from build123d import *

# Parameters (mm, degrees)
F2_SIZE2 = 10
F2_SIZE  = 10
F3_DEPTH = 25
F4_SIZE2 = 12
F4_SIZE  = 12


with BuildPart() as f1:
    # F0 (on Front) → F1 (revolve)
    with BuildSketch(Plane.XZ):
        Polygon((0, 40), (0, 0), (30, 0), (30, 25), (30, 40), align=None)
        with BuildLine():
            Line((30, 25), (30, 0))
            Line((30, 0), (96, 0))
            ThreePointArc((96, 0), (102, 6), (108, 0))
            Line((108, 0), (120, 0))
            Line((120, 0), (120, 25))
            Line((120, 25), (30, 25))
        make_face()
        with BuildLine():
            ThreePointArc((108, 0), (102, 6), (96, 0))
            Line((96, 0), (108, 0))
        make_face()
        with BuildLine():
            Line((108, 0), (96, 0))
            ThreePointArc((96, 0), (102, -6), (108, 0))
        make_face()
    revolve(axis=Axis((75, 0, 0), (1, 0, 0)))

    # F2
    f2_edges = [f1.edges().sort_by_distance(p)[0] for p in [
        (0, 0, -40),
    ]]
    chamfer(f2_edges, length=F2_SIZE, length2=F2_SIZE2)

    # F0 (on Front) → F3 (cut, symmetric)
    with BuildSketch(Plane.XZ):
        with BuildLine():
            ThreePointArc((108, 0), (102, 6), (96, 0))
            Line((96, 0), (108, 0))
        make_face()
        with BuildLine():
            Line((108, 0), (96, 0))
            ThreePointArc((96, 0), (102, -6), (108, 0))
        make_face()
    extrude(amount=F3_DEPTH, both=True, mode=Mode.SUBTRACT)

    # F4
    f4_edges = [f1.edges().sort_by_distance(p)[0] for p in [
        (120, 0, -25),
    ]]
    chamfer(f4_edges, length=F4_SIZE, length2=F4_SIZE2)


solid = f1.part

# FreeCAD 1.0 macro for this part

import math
import FreeCAD as App
import Part
import Sketcher

V = App.Vector
Q = App.Units.Quantity


def edges_at(feature, points):
    """Names of the edges that pass closest to the given points."""
    edges = feature.Shape.Edges
    near = lambda p: min(range(len(edges)), key=lambda i: edges[i].distToShape(Part.Vertex(*p))[0])
    return sorted({f"Edge{near(p) + 1}" for p in points})

doc = App.newDocument("Part")
body = doc.addObject("PartDesign::Body", "Body")

sketch1 = body.newObject("Sketcher::SketchObject", "Sketch")
sketch1.AttachmentSupport = (doc.getObject("XZ_Plane"), [""])
sketch1.MapMode = "FlatFace"
sketch1.addGeometry([
    Part.LineSegment(V(0, 40, 0), V(0, 0, 0)),
    Part.LineSegment(V(0, 0, 0), V(96, 0, 0)),
    Part.ArcOfCircle(Part.Circle(V(102, 0, 0), V(0, 0, 1), 6), math.radians(180), math.radians(360)),
    Part.LineSegment(V(108, 0, 0), V(120, 0, 0)),
    Part.LineSegment(V(120, 0, 0), V(120, 25, 0)),
    Part.LineSegment(V(120, 25, 0), V(30, 25, 0)),
    Part.LineSegment(V(30, 25, 0), V(30, 40, 0)),
    Part.LineSegment(V(30, 40, 0), V(0, 40, 0)),
], False)
sketch1.addConstraint([
    Sketcher.Constraint("Coincident", 0, 2, 1, 1),
    Sketcher.Constraint("Coincident", 1, 2, 2, 1),
    Sketcher.Constraint("Coincident", 2, 2, 3, 1),
    Sketcher.Constraint("Coincident", 3, 2, 4, 1),
    Sketcher.Constraint("Coincident", 4, 2, 5, 1),
    Sketcher.Constraint("Coincident", 5, 2, 6, 1),
    Sketcher.Constraint("Coincident", 6, 2, 7, 1),
    Sketcher.Constraint("Coincident", 7, 2, 0, 1),
    Sketcher.Constraint("Vertical", 0),
    Sketcher.Constraint("Horizontal", 1),
    Sketcher.Constraint("Horizontal", 3),
    Sketcher.Constraint("Vertical", 4),
    Sketcher.Constraint("Horizontal", 5),
    Sketcher.Constraint("Vertical", 6),
    Sketcher.Constraint("Horizontal", 7),
    Sketcher.Constraint("Coincident", 0, 2, -1, 1),
    Sketcher.Constraint("PointOnObject", 2, 3, -1),
    Sketcher.Constraint("PointOnObject", 2, 2, -1),
    Sketcher.Constraint("Radius", 2, Q("6 mm")),
    Sketcher.Constraint("DistanceX", 1, 1, 1, 2, Q("96 mm")),
    Sketcher.Constraint("DistanceX", 3, 1, 3, 2, Q("12 mm")),
    Sketcher.Constraint("DistanceX", 5, 2, 5, 1, Q("90 mm")),
    Sketcher.Constraint("DistanceY", 0, 2, 0, 1, Q("40 mm")),
    Sketcher.Constraint("DistanceY", 4, 1, 4, 2, Q("25 mm")),
])
revolution = body.newObject("PartDesign::Revolution", "Revolution")
revolution.Profile = sketch1
revolution.ReferenceAxis = (sketch1, ["H_Axis"])
revolution.Angle = 360
doc.recompute()

chamfer = body.newObject("PartDesign::Chamfer", "Chamfer")
chamfer.Base = (revolution, edges_at(revolution, [(0, 0, -40)]))
chamfer.ChamferType = "Two distances"
chamfer.Size = 10
chamfer.Size2 = 10

sketch2 = body.newObject("Sketcher::SketchObject", "Sketch001")
sketch2.AttachmentSupport = (doc.getObject("XZ_Plane"), [""])
sketch2.MapMode = "FlatFace"
sketch2.addGeometry(Part.Circle(V(102, 0, 0), V(0, 0, 1), 6), False)
sketch2.addConstraint([
    Sketcher.Constraint("PointOnObject", 0, 3, -1),
    Sketcher.Constraint("Diameter", 0, Q("12 mm")),
    Sketcher.Constraint("DistanceX", -1, 1, 0, 3, Q("102 mm")),
])
pocket1 = body.newObject("PartDesign::Pocket", "Pocket")
pocket1.Profile = sketch2
pocket1.Length = 50
pocket1.Midplane = True
doc.recompute()

chamfer2 = body.newObject("PartDesign::Chamfer", "Chamfer001")
chamfer2.Base = (pocket1, edges_at(pocket1, [(120, 0, -25)]))
chamfer2.ChamferType = "Two distances"
chamfer2.Size = 12
chamfer2.Size2 = 12

doc.recompute()
